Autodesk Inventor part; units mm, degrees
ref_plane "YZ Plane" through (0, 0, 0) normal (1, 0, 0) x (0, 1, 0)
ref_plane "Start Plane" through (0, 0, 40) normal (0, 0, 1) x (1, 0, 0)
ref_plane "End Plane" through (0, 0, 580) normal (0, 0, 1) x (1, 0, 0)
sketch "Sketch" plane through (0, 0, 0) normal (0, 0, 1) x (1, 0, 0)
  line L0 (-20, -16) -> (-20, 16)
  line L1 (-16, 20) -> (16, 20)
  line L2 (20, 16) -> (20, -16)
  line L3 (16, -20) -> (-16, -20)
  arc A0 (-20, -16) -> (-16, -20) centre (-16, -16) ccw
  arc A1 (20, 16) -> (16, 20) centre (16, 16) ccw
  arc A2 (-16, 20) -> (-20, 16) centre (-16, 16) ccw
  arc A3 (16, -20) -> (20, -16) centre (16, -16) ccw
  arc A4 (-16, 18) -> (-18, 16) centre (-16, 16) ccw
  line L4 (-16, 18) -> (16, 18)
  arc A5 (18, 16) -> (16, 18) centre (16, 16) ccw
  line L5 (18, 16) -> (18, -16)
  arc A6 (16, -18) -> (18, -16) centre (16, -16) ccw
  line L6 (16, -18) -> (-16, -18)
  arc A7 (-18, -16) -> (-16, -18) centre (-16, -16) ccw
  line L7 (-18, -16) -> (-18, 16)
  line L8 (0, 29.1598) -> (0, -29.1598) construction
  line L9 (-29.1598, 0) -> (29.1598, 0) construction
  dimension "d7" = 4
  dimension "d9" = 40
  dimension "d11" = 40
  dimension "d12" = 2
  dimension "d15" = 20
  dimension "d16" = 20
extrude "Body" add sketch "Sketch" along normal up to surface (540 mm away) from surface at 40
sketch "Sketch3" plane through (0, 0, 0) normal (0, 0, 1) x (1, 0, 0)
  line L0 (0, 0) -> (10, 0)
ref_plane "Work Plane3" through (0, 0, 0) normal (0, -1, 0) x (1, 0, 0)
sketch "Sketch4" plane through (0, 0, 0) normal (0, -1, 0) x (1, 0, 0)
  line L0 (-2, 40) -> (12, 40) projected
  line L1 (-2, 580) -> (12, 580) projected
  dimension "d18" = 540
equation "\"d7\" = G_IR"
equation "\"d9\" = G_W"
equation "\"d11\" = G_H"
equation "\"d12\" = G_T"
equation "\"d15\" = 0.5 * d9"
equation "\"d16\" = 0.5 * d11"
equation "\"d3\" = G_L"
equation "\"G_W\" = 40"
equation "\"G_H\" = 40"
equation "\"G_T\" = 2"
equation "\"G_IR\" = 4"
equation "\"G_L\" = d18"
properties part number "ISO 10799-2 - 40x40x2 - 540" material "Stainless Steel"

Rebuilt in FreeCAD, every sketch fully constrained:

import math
import FreeCAD as App
import Part
import Sketcher
from FreeCAD import Vector

doc = App.newDocument("Part")
body = doc.addObject("PartDesign::Body", "Body")

# Sketch on XY plane
sketch1 = doc.addObject("Sketcher::SketchObject", "Sketch")
body.addObject(sketch1)
sketch1.AttachmentSupport = (doc.XY_Plane, [""])
sketch1.MapMode = "FlatFace"
sketch1.AttachmentOffset = App.Placement(Vector(0, 0, 40), App.Rotation())
sketch1.addGeometry(Part.LineSegment(Vector(-20, 16, 0), Vector(-20, -16, 0)), False)
sketch1.addGeometry(Part.ArcOfCircle(Part.Circle(Vector(-16, -16, 0), Vector(0, 0, 1), 4), math.radians(180), math.radians(270)), False)
sketch1.addGeometry(Part.LineSegment(Vector(-16, -20, 0), Vector(16, -20, 0)), False)
sketch1.addGeometry(Part.ArcOfCircle(Part.Circle(Vector(16, -16, 0), Vector(0, 0, 1), 4), math.radians(-90), math.radians(0)), False)
sketch1.addGeometry(Part.LineSegment(Vector(20, -16, 0), Vector(20, 16, 0)), False)
sketch1.addGeometry(Part.ArcOfCircle(Part.Circle(Vector(16, 16, 0), Vector(0, 0, 1), 4), math.radians(0), math.radians(90)), False)
sketch1.addGeometry(Part.LineSegment(Vector(16, 20, 0), Vector(-16, 20, 0)), False)
sketch1.addGeometry(Part.ArcOfCircle(Part.Circle(Vector(-16, 16, 0), Vector(0, 0, 1), 4), math.radians(90), math.radians(180)), False)
sketch1.addGeometry(Part.ArcOfCircle(Part.Circle(Vector(-16, 16, 0), Vector(0, 0, 1), 2), math.radians(90), math.radians(180)), False)
sketch1.addGeometry(Part.LineSegment(Vector(-16, 18, 0), Vector(16, 18, 0)), False)
sketch1.addGeometry(Part.ArcOfCircle(Part.Circle(Vector(16, 16, 0), Vector(0, 0, 1), 2), math.radians(0), math.radians(90)), False)
sketch1.addGeometry(Part.LineSegment(Vector(18, 16, 0), Vector(18, -16, 0)), False)
sketch1.addGeometry(Part.ArcOfCircle(Part.Circle(Vector(16, -16, 0), Vector(0, 0, 1), 2), math.radians(-90), math.radians(0)), False)
sketch1.addGeometry(Part.LineSegment(Vector(16, -18, 0), Vector(-16, -18, 0)), False)
sketch1.addGeometry(Part.ArcOfCircle(Part.Circle(Vector(-16, -16, 0), Vector(0, 0, 1), 2), math.radians(180), math.radians(270)), False)
sketch1.addGeometry(Part.LineSegment(Vector(-18, -16, 0), Vector(-18, 16, 0)), False)
sketch1.addConstraint(Sketcher.Constraint("Tangent", 0, 2, 1, 1))
sketch1.addConstraint(Sketcher.Constraint("Tangent", 1, 2, 2, 1))
sketch1.addConstraint(Sketcher.Constraint("Tangent", 2, 2, 3, 1))
sketch1.addConstraint(Sketcher.Constraint("Tangent", 3, 2, 4, 1))
sketch1.addConstraint(Sketcher.Constraint("Tangent", 4, 2, 5, 1))
sketch1.addConstraint(Sketcher.Constraint("Tangent", 5, 2, 6, 1))
sketch1.addConstraint(Sketcher.Constraint("Tangent", 6, 2, 7, 1))
sketch1.addConstraint(Sketcher.Constraint("Tangent", 7, 2, 0, 1))
sketch1.addConstraint(Sketcher.Constraint("Tangent", 8, 1, 9, 1))
sketch1.addConstraint(Sketcher.Constraint("Tangent", 9, 2, 10, 2))
sketch1.addConstraint(Sketcher.Constraint("Tangent", 10, 1, 11, 1))
sketch1.addConstraint(Sketcher.Constraint("Tangent", 11, 2, 12, 2))
sketch1.addConstraint(Sketcher.Constraint("Tangent", 12, 1, 13, 1))
sketch1.addConstraint(Sketcher.Constraint("Tangent", 13, 2, 14, 2))
sketch1.addConstraint(Sketcher.Constraint("Tangent", 14, 1, 15, 1))
sketch1.addConstraint(Sketcher.Constraint("Tangent", 15, 2, 8, 2))
sketch1.addConstraint(Sketcher.Constraint("Vertical", 0))
sketch1.addConstraint(Sketcher.Constraint("Horizontal", 2))
sketch1.addConstraint(Sketcher.Constraint("Vertical", 4))
sketch1.addConstraint(Sketcher.Constraint("Horizontal", 6))
sketch1.addConstraint(Sketcher.Constraint("Horizontal", 9))
sketch1.addConstraint(Sketcher.Constraint("Vertical", 11))
sketch1.addConstraint(Sketcher.Constraint("Horizontal", 13))
sketch1.addConstraint(Sketcher.Constraint("Vertical", 15))
sketch1.addConstraint(Sketcher.Constraint("Coincident", 8, 3, 7, 3))
sketch1.addConstraint(Sketcher.Constraint("Coincident", 10, 3, 5, 3))
sketch1.addConstraint(Sketcher.Constraint("Coincident", 12, 3, 3, 3))
sketch1.addConstraint(Sketcher.Constraint("Equal", 1, 3))
sketch1.addConstraint(Sketcher.Constraint("Equal", 3, 5))
sketch1.addConstraint(Sketcher.Constraint("Equal", 5, 7))
sketch1.addConstraint(Sketcher.Constraint("Equal", 12, 14))
sketch1.addConstraint(Sketcher.Constraint("Symmetric", 1, 3, 5, 3, -1, 1))
sketch1.addConstraint(Sketcher.Constraint("Equal", 13, 0))
sketch1.addConstraint(Sketcher.Constraint("Radius", 1, 4.0))
sketch1.addConstraint(Sketcher.Constraint("Radius", 8, 2.0))
sketch1.addConstraint(Sketcher.Constraint("DistanceX", 0, 2, -1, 1, 20.0))
pad1 = doc.addObject("PartDesign::Pad", "Pad")
body.addObject(pad1)
pad1.Profile = sketch1
pad1.Length = 540

doc.recompute()
